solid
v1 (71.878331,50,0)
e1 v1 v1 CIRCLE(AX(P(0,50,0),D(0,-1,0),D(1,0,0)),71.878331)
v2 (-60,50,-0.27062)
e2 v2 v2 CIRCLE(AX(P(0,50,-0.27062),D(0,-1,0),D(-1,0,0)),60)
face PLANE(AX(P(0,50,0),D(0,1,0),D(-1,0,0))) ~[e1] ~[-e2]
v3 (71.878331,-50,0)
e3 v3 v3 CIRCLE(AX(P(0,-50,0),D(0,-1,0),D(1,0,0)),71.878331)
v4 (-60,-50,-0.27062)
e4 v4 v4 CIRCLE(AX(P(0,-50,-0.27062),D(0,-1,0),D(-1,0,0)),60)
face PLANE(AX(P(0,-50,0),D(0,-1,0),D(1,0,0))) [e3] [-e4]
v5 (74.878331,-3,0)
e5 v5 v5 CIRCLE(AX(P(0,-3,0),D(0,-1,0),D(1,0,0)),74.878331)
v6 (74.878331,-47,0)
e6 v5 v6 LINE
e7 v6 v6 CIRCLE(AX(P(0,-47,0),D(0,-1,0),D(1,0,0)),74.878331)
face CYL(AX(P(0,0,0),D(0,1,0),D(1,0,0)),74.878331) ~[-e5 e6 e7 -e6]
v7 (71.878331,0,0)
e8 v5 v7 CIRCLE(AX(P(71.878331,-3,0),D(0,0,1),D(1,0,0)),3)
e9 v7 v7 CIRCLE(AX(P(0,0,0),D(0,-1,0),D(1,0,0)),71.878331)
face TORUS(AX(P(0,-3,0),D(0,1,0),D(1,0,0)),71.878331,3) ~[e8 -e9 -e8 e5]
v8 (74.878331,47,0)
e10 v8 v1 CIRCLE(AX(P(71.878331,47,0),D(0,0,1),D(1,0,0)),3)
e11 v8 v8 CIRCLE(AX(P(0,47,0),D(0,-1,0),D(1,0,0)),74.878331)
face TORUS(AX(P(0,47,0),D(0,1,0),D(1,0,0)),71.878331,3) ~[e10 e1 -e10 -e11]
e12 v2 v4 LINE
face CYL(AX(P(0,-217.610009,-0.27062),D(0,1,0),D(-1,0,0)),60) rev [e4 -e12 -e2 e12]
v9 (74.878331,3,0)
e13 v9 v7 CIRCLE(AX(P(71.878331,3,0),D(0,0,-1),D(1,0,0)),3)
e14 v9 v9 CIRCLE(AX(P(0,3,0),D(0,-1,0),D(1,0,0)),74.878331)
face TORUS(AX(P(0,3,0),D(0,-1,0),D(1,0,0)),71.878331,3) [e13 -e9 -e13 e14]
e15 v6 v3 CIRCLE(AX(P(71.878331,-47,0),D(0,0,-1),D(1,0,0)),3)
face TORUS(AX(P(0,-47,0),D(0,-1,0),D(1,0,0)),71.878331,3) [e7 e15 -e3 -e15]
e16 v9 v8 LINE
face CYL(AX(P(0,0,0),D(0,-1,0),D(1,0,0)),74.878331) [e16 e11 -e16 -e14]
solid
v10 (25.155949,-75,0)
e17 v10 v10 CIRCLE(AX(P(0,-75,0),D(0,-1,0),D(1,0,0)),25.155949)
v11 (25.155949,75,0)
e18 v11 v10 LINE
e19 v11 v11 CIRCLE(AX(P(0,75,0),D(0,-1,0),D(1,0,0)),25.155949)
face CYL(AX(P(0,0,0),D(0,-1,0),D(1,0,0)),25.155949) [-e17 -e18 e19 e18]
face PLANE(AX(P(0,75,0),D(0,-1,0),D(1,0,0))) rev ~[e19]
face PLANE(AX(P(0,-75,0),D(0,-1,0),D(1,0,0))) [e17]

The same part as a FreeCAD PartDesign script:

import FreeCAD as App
import Part
import Sketcher


def edges_at(feature, points):
    """Names of the edges that pass closest to the given points."""
    edges = feature.Shape.Edges
    near = lambda p: min(range(len(edges)), key=lambda i: edges[i].distToShape(Part.Vertex(*p))[0])
    return sorted({f"Edge{near(p) + 1}" for p in points})

doc = App.newDocument("Part")
body = doc.addObject("PartDesign::Body", "Body")

# Sketch on XZ plane
sketch1 = body.newObject("Sketcher::SketchObject", "Sketch")
sketch1.AttachmentSupport = (doc.getObject("XZ_Plane"), [""])
sketch1.MapMode = "FlatFace"
sketch1.addGeometry(Part.Circle(App.Vector(0, 0, 0), App.Vector(0, 0, 1), 75), False)
sketch1.addConstraint(Sketcher.Constraint("Coincident", 0, 3, -1, 1))
sketch1.addConstraint(Sketcher.Constraint("Diameter", 0, 149.756662))
pad1 = body.newObject("PartDesign::Pad", "Pad")
pad1.Profile = sketch1
pad1.Length = 50

# Sketch on XZ plane
sketch2 = body.newObject("Sketcher::SketchObject", "Sketch001")
sketch2.AttachmentSupport = (doc.getObject("XZ_Plane"), [""])
sketch2.MapMode = "FlatFace"
sketch2.addGeometry(Part.Circle(App.Vector(0, 0, 0), App.Vector(0, 0, 1), 60), False)
sketch2.addConstraint(Sketcher.Constraint("PointOnObject", 0, 3, -2))
sketch2.addConstraint(Sketcher.Constraint("Diameter", 0, 120.0))
sketch2.addConstraint(Sketcher.Constraint("DistanceY", 0, 3, -1, 1, 0.27062))
doc.recompute()
hole = body.newObject("PartDesign::Hole", "Hole")
hole.Profile = sketch2
hole.ThreadType = "None"
hole.Diameter = 120
hole.DepthType = "ThroughAll"
hole.Reversed = True
doc.recompute()

fillet = body.newObject("PartDesign::Fillet", "Fillet")
fillet.Base = (hole, edges_at(hole, [(-74.878, -50, 0), (-74.878, 0, 0)]))
fillet.Radius = 3
body2 = doc.addObject("PartDesign::Body", "Body001")
doc.recompute()

body2.BaseFeature = body
doc.recompute()

mirroring = doc.addObject("Part::Mirroring", "Mirroring")
mirroring.Source = body
mirroring.Base = App.Vector(0, 0, 0)
mirroring.Normal = App.Vector(0, -1, 0)
body3 = doc.addObject("PartDesign::Body", "Body002")
body3.BaseFeature = mirroring
boolean = body2.newObject("PartDesign::Boolean", "Boolean")
boolean.Type = "Fuse"
boolean.addObjects([body3])
doc.recompute()
body4 = doc.addObject("PartDesign::Body", "Body003")

# Sketch on XZ plane
sketch3 = body4.newObject("Sketcher::SketchObject", "Sketch002")
sketch3.AttachmentSupport = (doc.getObject("XZ_Plane003"), [""])
sketch3.MapMode = "FlatFace"
sketch3.addGeometry(Part.Circle(App.Vector(0, 0, 0), App.Vector(0, 0, 1), 25), False)
sketch3.addConstraint(Sketcher.Constraint("Coincident", 0, 3, -1, 1))
sketch3.addConstraint(Sketcher.Constraint("Diameter", 0, 50.311897))
pad2 = body4.newObject("PartDesign::Pad", "Pad001")
pad2.Profile = sketch3
pad2.Length = 150
pad2.Midplane = True
mirroring.Visibility = False

doc.recompute()
